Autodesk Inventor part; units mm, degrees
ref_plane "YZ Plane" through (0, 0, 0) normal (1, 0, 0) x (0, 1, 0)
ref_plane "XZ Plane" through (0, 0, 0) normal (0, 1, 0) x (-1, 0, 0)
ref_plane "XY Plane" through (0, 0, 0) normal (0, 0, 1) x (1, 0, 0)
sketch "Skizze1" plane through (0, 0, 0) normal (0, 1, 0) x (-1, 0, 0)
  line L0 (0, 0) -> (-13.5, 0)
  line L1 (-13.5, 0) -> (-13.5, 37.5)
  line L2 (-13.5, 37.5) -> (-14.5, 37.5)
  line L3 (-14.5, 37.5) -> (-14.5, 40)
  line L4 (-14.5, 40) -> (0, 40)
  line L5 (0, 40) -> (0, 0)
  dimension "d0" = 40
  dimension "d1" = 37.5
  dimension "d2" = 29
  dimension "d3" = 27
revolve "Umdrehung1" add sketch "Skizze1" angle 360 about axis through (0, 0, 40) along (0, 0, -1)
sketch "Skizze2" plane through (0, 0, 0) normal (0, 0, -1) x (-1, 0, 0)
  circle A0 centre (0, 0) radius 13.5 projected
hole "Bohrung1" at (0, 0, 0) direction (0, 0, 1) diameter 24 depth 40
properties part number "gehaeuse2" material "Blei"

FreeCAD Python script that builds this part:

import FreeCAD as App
import Part
import Sketcher


def add_polygon(sketch, points):
    """Adds a closed chain of lines whose ends are joined by coincident constraints."""
    first, n = sketch.GeometryCount, len(points)
    for a, b in zip(points, points[1:] + points[:1]):
        sketch.addGeometry(Part.LineSegment(App.Vector(*a, 0), App.Vector(*b, 0)), False)
    for i in range(n):
        sketch.addConstraint(Sketcher.Constraint("Coincident", first + i, 2, first + (i + 1) % n, 1))

doc = App.newDocument("Part")
params = doc.addObject("Spreadsheet::Sheet", "Params")
for row, (alias, value) in enumerate([
    ("sketch1_height", "40 mm"),
    ("sketch1_height2", "37.5 mm"),
    ("sketch1_width", "1 mm"),
    ("sketch1_width2", "13.5 mm"),
    ("revolution_angle", "360 deg"),
    ("sketch2_diameter", "24 mm"),
    ("hole_diameter", "24 mm"),
    ("hole_depth", "40 mm"),
], start=1):
    params.set(f"A{row}", alias)
    params.set(f"B{row}", "=" + value)
    params.setAlias(f"B{row}", alias)

body = doc.addObject("PartDesign::Body", "Body")

sketch1 = body.newObject("Sketcher::SketchObject", "Sketch")
sketch1.AttachmentSupport = (doc.getObject("XZ_Plane"), [""])
sketch1.MapMode = "FlatFace"
add_polygon(sketch1, [(13.5, 0), (0, 0), (0, 40), (14.5, 40), (14.5, 37.5), (13.5, 37.5)])
sketch1.addConstraint([
    Sketcher.Constraint("Horizontal", 0),
    Sketcher.Constraint("Vertical", 1),
    Sketcher.Constraint("Horizontal", 2),
    Sketcher.Constraint("Vertical", 3),
    Sketcher.Constraint("Horizontal", 4),
    Sketcher.Constraint("Vertical", 5),
    Sketcher.Constraint("Coincident", 0, 2, -1, 1),
    Sketcher.Constraint("DistanceY", 1, 1, 1, 2, 40.0),
    Sketcher.Constraint("DistanceY", 5, 2, 5, 1, 37.5),
    Sketcher.Constraint("DistanceX", 4, 2, 4, 1, 1.0),
    Sketcher.Constraint("DistanceX", 0, 2, 0, 1, 13.5),
])
sketch1.setExpression("Constraints[13]", "Params.sketch1_height")
sketch1.setExpression("Constraints[14]", "Params.sketch1_height2")
sketch1.setExpression("Constraints[15]", "Params.sketch1_width")
sketch1.setExpression("Constraints[16]", "Params.sketch1_width2")
revolution = body.newObject("PartDesign::Revolution", "Revolution")
revolution.Profile = sketch1
revolution.ReferenceAxis = (sketch1, ["V_Axis"])
revolution.setExpression("Angle", "Params.revolution_angle")

sketch2 = body.newObject("Sketcher::SketchObject", "Sketch001")
sketch2.AttachmentSupport = (doc.getObject("XY_Plane"), [""])
sketch2.MapMode = "FlatFace"
sketch2.addGeometry(Part.Circle(App.Vector(0, 0, 0), App.Vector(0, 0, 1), 12), False)
sketch2.addConstraint([
    Sketcher.Constraint("Coincident", 0, 3, -1, 1),
    Sketcher.Constraint("Diameter", 0, 24.0),
])
sketch2.setExpression("Constraints[1]", "Params.sketch2_diameter")
doc.recompute()
hole = body.newObject("PartDesign::Hole", "Hole")
hole.Profile = sketch2
hole.ThreadType = "None"
hole.setExpression("Diameter", "Params.hole_diameter")
hole.DepthType = "Dimension"
hole.setExpression("Depth", "Params.hole_depth")
hole.DrillPoint = "Flat"
hole.Reversed = True

doc.recompute()
